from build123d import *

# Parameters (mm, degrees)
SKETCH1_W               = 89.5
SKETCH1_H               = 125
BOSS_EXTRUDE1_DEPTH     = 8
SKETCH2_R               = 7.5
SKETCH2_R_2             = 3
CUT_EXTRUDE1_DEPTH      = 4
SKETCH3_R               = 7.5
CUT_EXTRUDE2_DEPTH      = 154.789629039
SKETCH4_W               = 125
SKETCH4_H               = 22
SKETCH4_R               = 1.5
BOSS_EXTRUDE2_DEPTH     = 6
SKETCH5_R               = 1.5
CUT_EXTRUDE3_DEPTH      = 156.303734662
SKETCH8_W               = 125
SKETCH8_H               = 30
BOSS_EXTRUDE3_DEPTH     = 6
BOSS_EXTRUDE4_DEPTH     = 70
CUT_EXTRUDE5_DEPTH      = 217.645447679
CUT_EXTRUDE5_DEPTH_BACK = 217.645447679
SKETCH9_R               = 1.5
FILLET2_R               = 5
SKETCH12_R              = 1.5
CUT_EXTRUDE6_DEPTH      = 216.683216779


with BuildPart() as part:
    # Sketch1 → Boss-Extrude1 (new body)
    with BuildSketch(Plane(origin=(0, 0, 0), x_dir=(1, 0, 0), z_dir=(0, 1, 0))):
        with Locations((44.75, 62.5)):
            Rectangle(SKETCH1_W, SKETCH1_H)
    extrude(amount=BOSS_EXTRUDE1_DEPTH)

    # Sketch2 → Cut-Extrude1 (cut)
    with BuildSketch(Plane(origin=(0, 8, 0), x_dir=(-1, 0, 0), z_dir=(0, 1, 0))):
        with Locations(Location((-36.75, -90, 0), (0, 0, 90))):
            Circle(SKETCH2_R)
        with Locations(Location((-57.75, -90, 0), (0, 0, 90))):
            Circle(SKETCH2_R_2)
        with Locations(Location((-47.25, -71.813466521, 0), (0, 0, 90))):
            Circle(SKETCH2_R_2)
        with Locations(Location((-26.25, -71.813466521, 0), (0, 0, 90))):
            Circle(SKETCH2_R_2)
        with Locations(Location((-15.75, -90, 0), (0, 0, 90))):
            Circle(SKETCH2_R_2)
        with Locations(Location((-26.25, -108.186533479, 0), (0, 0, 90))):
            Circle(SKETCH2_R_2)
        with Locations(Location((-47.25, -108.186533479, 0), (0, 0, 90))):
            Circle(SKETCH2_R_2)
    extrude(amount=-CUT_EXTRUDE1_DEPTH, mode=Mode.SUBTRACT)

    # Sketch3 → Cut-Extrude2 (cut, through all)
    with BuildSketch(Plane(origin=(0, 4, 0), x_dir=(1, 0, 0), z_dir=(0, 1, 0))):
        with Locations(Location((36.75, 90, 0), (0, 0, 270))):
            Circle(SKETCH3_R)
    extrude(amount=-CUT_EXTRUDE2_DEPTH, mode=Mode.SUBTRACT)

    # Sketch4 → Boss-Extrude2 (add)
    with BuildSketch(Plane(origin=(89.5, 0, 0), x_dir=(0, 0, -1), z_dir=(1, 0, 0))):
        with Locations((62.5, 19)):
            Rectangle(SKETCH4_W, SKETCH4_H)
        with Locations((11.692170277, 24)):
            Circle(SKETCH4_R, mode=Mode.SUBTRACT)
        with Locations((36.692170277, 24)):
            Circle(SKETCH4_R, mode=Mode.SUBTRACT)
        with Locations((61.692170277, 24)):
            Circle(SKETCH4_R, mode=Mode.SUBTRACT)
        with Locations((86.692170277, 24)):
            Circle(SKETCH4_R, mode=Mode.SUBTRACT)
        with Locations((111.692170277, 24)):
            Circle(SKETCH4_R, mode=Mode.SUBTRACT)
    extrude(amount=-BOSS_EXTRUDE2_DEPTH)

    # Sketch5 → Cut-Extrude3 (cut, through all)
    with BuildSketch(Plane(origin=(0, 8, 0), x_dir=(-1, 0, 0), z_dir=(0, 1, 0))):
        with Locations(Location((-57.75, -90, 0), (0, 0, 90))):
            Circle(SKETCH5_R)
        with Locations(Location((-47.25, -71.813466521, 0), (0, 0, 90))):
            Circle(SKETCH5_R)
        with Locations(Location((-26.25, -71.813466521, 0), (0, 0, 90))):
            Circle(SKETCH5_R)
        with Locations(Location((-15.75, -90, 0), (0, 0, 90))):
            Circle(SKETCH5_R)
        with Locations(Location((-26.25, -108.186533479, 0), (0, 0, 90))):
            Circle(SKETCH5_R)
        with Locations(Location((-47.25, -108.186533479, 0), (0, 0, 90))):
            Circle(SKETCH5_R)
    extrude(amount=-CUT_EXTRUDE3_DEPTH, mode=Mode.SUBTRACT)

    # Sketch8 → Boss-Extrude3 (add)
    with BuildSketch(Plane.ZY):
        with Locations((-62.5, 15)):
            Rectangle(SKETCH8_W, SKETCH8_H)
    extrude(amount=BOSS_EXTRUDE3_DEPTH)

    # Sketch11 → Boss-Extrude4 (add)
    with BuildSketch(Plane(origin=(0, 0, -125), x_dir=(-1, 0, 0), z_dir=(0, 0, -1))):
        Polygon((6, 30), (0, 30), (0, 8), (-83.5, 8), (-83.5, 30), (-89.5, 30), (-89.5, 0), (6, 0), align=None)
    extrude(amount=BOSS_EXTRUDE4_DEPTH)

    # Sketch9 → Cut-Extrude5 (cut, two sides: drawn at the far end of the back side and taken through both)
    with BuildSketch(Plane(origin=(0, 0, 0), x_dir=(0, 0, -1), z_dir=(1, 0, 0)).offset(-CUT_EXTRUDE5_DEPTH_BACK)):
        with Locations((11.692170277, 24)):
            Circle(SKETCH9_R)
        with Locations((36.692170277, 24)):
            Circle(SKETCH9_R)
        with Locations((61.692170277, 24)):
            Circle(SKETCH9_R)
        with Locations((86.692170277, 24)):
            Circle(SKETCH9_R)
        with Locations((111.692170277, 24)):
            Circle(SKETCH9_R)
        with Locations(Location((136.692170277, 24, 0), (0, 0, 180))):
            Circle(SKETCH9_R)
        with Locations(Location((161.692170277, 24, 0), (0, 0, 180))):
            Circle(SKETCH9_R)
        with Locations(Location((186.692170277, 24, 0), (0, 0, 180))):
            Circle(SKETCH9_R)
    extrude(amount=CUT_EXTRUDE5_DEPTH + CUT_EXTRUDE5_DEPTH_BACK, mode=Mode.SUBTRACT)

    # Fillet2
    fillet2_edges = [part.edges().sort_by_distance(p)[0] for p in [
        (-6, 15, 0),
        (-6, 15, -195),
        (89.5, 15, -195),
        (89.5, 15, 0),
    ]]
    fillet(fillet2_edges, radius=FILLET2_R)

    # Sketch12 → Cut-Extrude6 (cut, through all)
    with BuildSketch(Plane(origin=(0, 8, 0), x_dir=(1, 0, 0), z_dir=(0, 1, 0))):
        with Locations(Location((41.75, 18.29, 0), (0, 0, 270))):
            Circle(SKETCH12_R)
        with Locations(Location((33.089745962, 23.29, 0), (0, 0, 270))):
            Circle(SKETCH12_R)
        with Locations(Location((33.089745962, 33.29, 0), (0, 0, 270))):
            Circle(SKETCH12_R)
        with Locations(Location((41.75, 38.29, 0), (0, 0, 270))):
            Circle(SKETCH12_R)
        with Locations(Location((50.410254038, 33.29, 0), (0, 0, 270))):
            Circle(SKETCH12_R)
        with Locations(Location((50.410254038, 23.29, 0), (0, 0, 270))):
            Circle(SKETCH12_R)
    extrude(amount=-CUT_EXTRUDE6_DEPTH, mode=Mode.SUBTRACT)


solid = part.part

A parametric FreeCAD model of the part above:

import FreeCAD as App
import Part
import Sketcher

V = App.Vector
Q = App.Units.Quantity


def edges_at(feature, points):
    """Names of the edges that pass closest to the given points."""
    edges = feature.Shape.Edges
    near = lambda p: min(range(len(edges)), key=lambda i: edges[i].distToShape(Part.Vertex(*p))[0])
    return sorted({f"Edge{near(p) + 1}" for p in points})


def add_polygon(sketch, points):
    """Adds a closed chain of lines whose ends are joined by coincident constraints."""
    first, n = sketch.GeometryCount, len(points)
    for a, b in zip(points, points[1:] + points[:1]):
        sketch.addGeometry(Part.LineSegment(App.Vector(*a, 0), App.Vector(*b, 0)), False)
    for i in range(n):
        sketch.addConstraint(Sketcher.Constraint("Coincident", first + i, 2, first + (i + 1) % n, 1))

doc = App.newDocument("Part")
body = doc.addObject("PartDesign::Body", "Body")

# Sketch on XZ plane
sketch1 = body.newObject("Sketcher::SketchObject", "Sketch")
sketch1.AttachmentSupport = (doc.getObject("XZ_Plane"), [""])
sketch1.MapMode = "FlatFace"
add_polygon(sketch1, [(0, -125), (0, 0), (89.5, 0), (89.5, -125)])  # lines 0-3
sketch1.addConstraint(Sketcher.Constraint("Vertical", 0))
sketch1.addConstraint(Sketcher.Constraint("Horizontal", 1))
sketch1.addConstraint(Sketcher.Constraint("Vertical", 2))
sketch1.addConstraint(Sketcher.Constraint("Horizontal", 3))
sketch1.addConstraint(Sketcher.Constraint("Coincident", 0, 2, -1, 1))
sketch1.addConstraint(Sketcher.Constraint("DistanceY", 0, 1, 0, 2, Q("125 mm")))
sketch1.addConstraint(Sketcher.Constraint("DistanceX", 1, 1, 1, 2, Q("89.5 mm")))
pad1 = body.newObject("PartDesign::Pad", "Pad")
pad1.Profile = sketch1
pad1.Length = 8
pad1.Reversed = True

# Sketch on XZ plane
sketch2 = body.newObject("Sketcher::SketchObject", "Sketch001")
sketch2.AttachmentSupport = (doc.getObject("XZ_Plane"), [""])
sketch2.MapMode = "FlatFace"
sketch2.AttachmentOffset = App.Placement(V(0, 0, -8), App.Rotation())
sketch2.addGeometry(Part.Circle(V(36.75, -90, 0), V(0, 0, 1), 7.5), False)
sketch2.addGeometry(Part.Circle(V(57.75, -90, 0), V(0, 0, 1), 3), False)
sketch2.addGeometry(Part.Circle(V(47.25, -71.813467, 0), V(0, 0, 1), 3), False)
sketch2.addGeometry(Part.Circle(V(26.25, -71.813467, 0), V(0, 0, 1), 3), False)
sketch2.addGeometry(Part.Circle(V(15.75, -90, 0), V(0, 0, 1), 3), False)
sketch2.addGeometry(Part.Circle(V(26.25, -108.186533, 0), V(0, 0, 1), 3), False)
sketch2.addGeometry(Part.Circle(V(47.25, -108.186533, 0), V(0, 0, 1), 3), False)
sketch2.addConstraint(Sketcher.Constraint("Equal", 1, 2))
sketch2.addConstraint(Sketcher.Constraint("Equal", 2, 3))
sketch2.addConstraint(Sketcher.Constraint("Equal", 3, 4))
sketch2.addConstraint(Sketcher.Constraint("Equal", 4, 5))
sketch2.addConstraint(Sketcher.Constraint("Equal", 5, 6))
sketch2.addConstraint(Sketcher.Constraint("Horizontal", 0, 3, 1, 3))
sketch2.addConstraint(Sketcher.Constraint("Horizontal", 2, 3, 3, 3))
sketch2.addConstraint(Sketcher.Constraint("Horizontal", 1, 3, 4, 3))
sketch2.addConstraint(Sketcher.Constraint("Horizontal", 5, 3, 6, 3))
sketch2.addConstraint(Sketcher.Constraint("Vertical", 3, 3, 5, 3))
sketch2.addConstraint(Sketcher.Constraint("Vertical", 2, 3, 6, 3))
sketch2.addConstraint(Sketcher.Constraint("Diameter", 0, Q("15 mm")))
sketch2.addConstraint(Sketcher.Constraint("Diameter", 1, Q("6 mm")))
sketch2.addConstraint(Sketcher.Constraint("DistanceY", 0, 3, -1, 1, Q("90 mm")))
sketch2.addConstraint(Sketcher.Constraint("DistanceX", 0, 3, 1, 3, Q("21 mm")))
sketch2.addConstraint(Sketcher.Constraint("DistanceX", 3, 3, 2, 3, Q("21 mm")))
sketch2.addConstraint(Sketcher.Constraint("DistanceX", 4, 3, 0, 3, Q("21 mm")))
sketch2.addConstraint(Sketcher.Constraint("DistanceX", 0, 3, 2, 3, Q("10.5 mm")))
sketch2.addConstraint(Sketcher.Constraint("DistanceX", -1, 1, 0, 3, Q("36.75 mm")))
sketch2.addConstraint(Sketcher.Constraint("DistanceY", 2, 3, -1, 1, Q("71.813467 mm")))
sketch2.addConstraint(Sketcher.Constraint("DistanceY", 5, 3, -1, 1, Q("108.186533 mm")))
pocket1 = body.newObject("PartDesign::Pocket", "Pocket")
pocket1.Profile = sketch2
pocket1.Length = 4
pocket1.Reversed = True

# Sketch on XZ plane
sketch3 = body.newObject("Sketcher::SketchObject", "Sketch002")
sketch3.AttachmentSupport = (doc.getObject("XZ_Plane"), [""])
sketch3.MapMode = "FlatFace"
sketch3.AttachmentOffset = App.Placement(V(0, 0, -4), App.Rotation())
sketch3.addGeometry(Part.Circle(V(36.75, -90, 0), V(0, 0, 1), 7.5), False)
sketch3.addConstraint(Sketcher.Constraint("Diameter", 0, Q("15 mm")))
sketch3.addConstraint(Sketcher.Constraint("DistanceY", 0, 3, -1, 1, Q("90 mm")))
sketch3.addConstraint(Sketcher.Constraint("DistanceX", -1, 1, 0, 3, Q("36.75 mm")))
pocket2 = body.newObject("PartDesign::Pocket", "Pocket001")
pocket2.Profile = sketch3
pocket2.Type = "ThroughAll"
pocket2.Reversed = True

# Sketch on YZ plane
sketch4 = body.newObject("Sketcher::SketchObject", "Sketch003")
sketch4.AttachmentSupport = (doc.getObject("YZ_Plane"), [""])
sketch4.MapMode = "FlatFace"
sketch4.AttachmentOffset = App.Placement(V(0, 0, 89.5), App.Rotation())
add_polygon(sketch4, [(30, 0), (8, 0), (8, -125), (30, -125)])  # lines 0-3
sketch4.addGeometry(Part.Circle(V(24, -11.69217, 0), V(0, 0, 1), 1.5), False)  # 4
sketch4.addGeometry(Part.Circle(V(24, -36.69217, 0), V(0, 0, 1), 1.5), False)  # 5
sketch4.addGeometry(Part.Circle(V(24, -61.69217, 0), V(0, 0, 1), 1.5), False)  # 6
sketch4.addGeometry(Part.Circle(V(24, -86.69217, 0), V(0, 0, 1), 1.5), False)  # 7
sketch4.addGeometry(Part.Circle(V(24, -111.69217, 0), V(0, 0, 1), 1.5), False)  # 8
sketch4.addConstraint(Sketcher.Constraint("Horizontal", 0))
sketch4.addConstraint(Sketcher.Constraint("Vertical", 1))
sketch4.addConstraint(Sketcher.Constraint("Horizontal", 2))
sketch4.addConstraint(Sketcher.Constraint("Vertical", 3))
sketch4.addConstraint(Sketcher.Constraint("Equal", 4, 5))
sketch4.addConstraint(Sketcher.Constraint("Equal", 5, 6))
sketch4.addConstraint(Sketcher.Constraint("Equal", 6, 7))
sketch4.addConstraint(Sketcher.Constraint("Equal", 7, 8))
sketch4.addConstraint(Sketcher.Constraint("PointOnObject", 0, 2, -1))
sketch4.addConstraint(Sketcher.Constraint("Vertical", 4, 3, 5, 3))
sketch4.addConstraint(Sketcher.Constraint("Vertical", 5, 3, 6, 3))
sketch4.addConstraint(Sketcher.Constraint("Vertical", 6, 3, 7, 3))
sketch4.addConstraint(Sketcher.Constraint("Vertical", 7, 3, 8, 3))
sketch4.addConstraint(Sketcher.Constraint("Diameter", 4, Q("3 mm")))
sketch4.addConstraint(Sketcher.Constraint("DistanceX", 0, 2, 0, 1, Q("22 mm")))
sketch4.addConstraint(Sketcher.Constraint("DistanceY", 1, 2, 1, 1, Q("125 mm")))
sketch4.addConstraint(Sketcher.Constraint("DistanceX", -1, 1, 4, 3, Q("24 mm")))
sketch4.addConstraint(Sketcher.Constraint("DistanceX", -1, 1, 0, 2, Q("8 mm")))
sketch4.addConstraint(Sketcher.Constraint("DistanceY", 5, 3, 4, 3, Q("25 mm")))
sketch4.addConstraint(Sketcher.Constraint("DistanceY", 6, 3, 5, 3, Q("25 mm")))
sketch4.addConstraint(Sketcher.Constraint("DistanceY", 7, 3, 6, 3, Q("25 mm")))
sketch4.addConstraint(Sketcher.Constraint("DistanceY", 8, 3, 7, 3, Q("25 mm")))
sketch4.addConstraint(Sketcher.Constraint("DistanceY", 4, 3, -1, 1, Q("11.69217 mm")))
pad2 = body.newObject("PartDesign::Pad", "Pad001")
pad2.Profile = sketch4
pad2.Length = 6
pad2.Reversed = True

# Sketch on XZ plane
sketch5 = body.newObject("Sketcher::SketchObject", "Sketch004")
sketch5.AttachmentSupport = (doc.getObject("XZ_Plane"), [""])
sketch5.MapMode = "FlatFace"
sketch5.AttachmentOffset = App.Placement(V(0, 0, -8), App.Rotation())
sketch5.addGeometry(Part.Circle(V(57.75, -90, 0), V(0, 0, 1), 1.5), False)
sketch5.addGeometry(Part.Circle(V(47.25, -71.813467, 0), V(0, 0, 1), 1.5), False)
sketch5.addGeometry(Part.Circle(V(26.25, -71.813467, 0), V(0, 0, 1), 1.5), False)
sketch5.addGeometry(Part.Circle(V(15.75, -90, 0), V(0, 0, 1), 1.5), False)
sketch5.addGeometry(Part.Circle(V(26.25, -108.186533, 0), V(0, 0, 1), 1.5), False)
sketch5.addGeometry(Part.Circle(V(47.25, -108.186533, 0), V(0, 0, 1), 1.5), False)
sketch5.addConstraint(Sketcher.Constraint("Equal", 0, 1))
sketch5.addConstraint(Sketcher.Constraint("Equal", 1, 2))
sketch5.addConstraint(Sketcher.Constraint("Equal", 2, 3))
sketch5.addConstraint(Sketcher.Constraint("Equal", 3, 4))
sketch5.addConstraint(Sketcher.Constraint("Equal", 4, 5))
sketch5.addConstraint(Sketcher.Constraint("Horizontal", 1, 3, 2, 3))
sketch5.addConstraint(Sketcher.Constraint("Horizontal", 0, 3, 3, 3))
sketch5.addConstraint(Sketcher.Constraint("Horizontal", 4, 3, 5, 3))
sketch5.addConstraint(Sketcher.Constraint("Vertical", 2, 3, 4, 3))
sketch5.addConstraint(Sketcher.Constraint("Vertical", 1, 3, 5, 3))
sketch5.addConstraint(Sketcher.Constraint("Diameter", 0, Q("3 mm")))
sketch5.addConstraint(Sketcher.Constraint("DistanceY", 0, 3, -1, 1, Q("90 mm")))
sketch5.addConstraint(Sketcher.Constraint("DistanceX", 2, 3, 1, 3, Q("21 mm")))
sketch5.addConstraint(Sketcher.Constraint("DistanceX", 3, 3, 0, 3, Q("42 mm")))
sketch5.addConstraint(Sketcher.Constraint("DistanceX", 1, 3, 0, 3, Q("10.5 mm")))
sketch5.addConstraint(Sketcher.Constraint("DistanceX", -1, 1, 0, 3, Q("57.75 mm")))
sketch5.addConstraint(Sketcher.Constraint("DistanceY", 1, 3, -1, 1, Q("71.813467 mm")))
sketch5.addConstraint(Sketcher.Constraint("DistanceY", 4, 3, -1, 1, Q("108.186533 mm")))
pocket3 = body.newObject("PartDesign::Pocket", "Pocket002")
pocket3.Profile = sketch5
pocket3.Type = "ThroughAll"
pocket3.Reversed = True

# Sketch on YZ plane
sketch6 = body.newObject("Sketcher::SketchObject", "Sketch005")
sketch6.AttachmentSupport = (doc.getObject("YZ_Plane"), [""])
sketch6.MapMode = "FlatFace"
add_polygon(sketch6, [(30, -125), (0, -125), (0, 0), (30, 0)])  # lines 0-3
sketch6.addConstraint(Sketcher.Constraint("Horizontal", 0))
sketch6.addConstraint(Sketcher.Constraint("Vertical", 1))
sketch6.addConstraint(Sketcher.Constraint("Horizontal", 2))
sketch6.addConstraint(Sketcher.Constraint("Vertical", 3))
sketch6.addConstraint(Sketcher.Constraint("Coincident", 1, 2, -1, 1))
sketch6.addConstraint(Sketcher.Constraint("DistanceX", 0, 2, 0, 1, Q("30 mm")))
sketch6.addConstraint(Sketcher.Constraint("DistanceY", 1, 1, 1, 2, Q("125 mm")))
pad3 = body.newObject("PartDesign::Pad", "Pad002")
pad3.Profile = sketch6
pad3.Length = 6
pad3.Reversed = True

# Sketch on XY plane
sketch7 = body.newObject("Sketcher::SketchObject", "Sketch006")
sketch7.AttachmentSupport = (doc.getObject("XY_Plane"), [""])
sketch7.MapMode = "FlatFace"
sketch7.AttachmentOffset = App.Placement(V(0, 0, -125), App.Rotation())
add_polygon(sketch7, [(-6, 30), (0, 30), (0, 8), (83.5, 8), (83.5, 30), (89.5, 30), (89.5, 0), (-6, 0)])  # lines 0-7
sketch7.addConstraint(Sketcher.Constraint("Horizontal", 0))
sketch7.addConstraint(Sketcher.Constraint("Vertical", 1))
sketch7.addConstraint(Sketcher.Constraint("Horizontal", 2))
sketch7.addConstraint(Sketcher.Constraint("Vertical", 3))
sketch7.addConstraint(Sketcher.Constraint("Horizontal", 4))
sketch7.addConstraint(Sketcher.Constraint("Vertical", 5))
sketch7.addConstraint(Sketcher.Constraint("Horizontal", 6))
sketch7.addConstraint(Sketcher.Constraint("Vertical", 7))
sketch7.addConstraint(Sketcher.Constraint("PointOnObject", 0, 2, -2))
sketch7.addConstraint(Sketcher.Constraint("PointOnObject", 5, 2, -1))
sketch7.addConstraint(Sketcher.Constraint("Horizontal", 0, 2, 3, 2))
sketch7.addConstraint(Sketcher.Constraint("Equal", 0, 4))
sketch7.addConstraint(Sketcher.Constraint("DistanceX", 0, 1, 0, 2, Q("6 mm")))
sketch7.addConstraint(Sketcher.Constraint("DistanceY", 1, 2, 1, 1, Q("22 mm")))
sketch7.addConstraint(Sketcher.Constraint("DistanceY", 5, 2, 5, 1, Q("30 mm")))
sketch7.addConstraint(Sketcher.Constraint("DistanceX", 2, 1, 2, 2, Q("83.5 mm")))
pad4 = body.newObject("PartDesign::Pad", "Pad003")
pad4.Profile = sketch7
pad4.Length = 70
pad4.Reversed = True

# Sketch on YZ plane
sketch8 = body.newObject("Sketcher::SketchObject", "Sketch007")
sketch8.AttachmentSupport = (doc.getObject("YZ_Plane"), [""])
sketch8.MapMode = "FlatFace"
sketch8.addGeometry(Part.Circle(V(24, -11.69217, 0), V(0, 0, 1), 1.5), False)
sketch8.addGeometry(Part.Circle(V(24, -36.69217, 0), V(0, 0, 1), 1.5), False)
sketch8.addGeometry(Part.Circle(V(24, -61.69217, 0), V(0, 0, 1), 1.5), False)
sketch8.addGeometry(Part.Circle(V(24, -86.69217, 0), V(0, 0, 1), 1.5), False)
sketch8.addGeometry(Part.Circle(V(24, -111.69217, 0), V(0, 0, 1), 1.5), False)
sketch8.addGeometry(Part.Circle(V(24, -136.69217, 0), V(0, 0, 1), 1.5), False)
sketch8.addGeometry(Part.Circle(V(24, -161.69217, 0), V(0, 0, 1), 1.5), False)
sketch8.addGeometry(Part.Circle(V(24, -186.69217, 0), V(0, 0, 1), 1.5), False)
sketch8.addConstraint(Sketcher.Constraint("Equal", 0, 1))
sketch8.addConstraint(Sketcher.Constraint("Equal", 1, 2))
sketch8.addConstraint(Sketcher.Constraint("Equal", 2, 3))
sketch8.addConstraint(Sketcher.Constraint("Equal", 3, 4))
sketch8.addConstraint(Sketcher.Constraint("Equal", 4, 5))
sketch8.addConstraint(Sketcher.Constraint("Equal", 5, 6))
sketch8.addConstraint(Sketcher.Constraint("Equal", 6, 7))
sketch8.addConstraint(Sketcher.Constraint("Vertical", 0, 3, 1, 3))
sketch8.addConstraint(Sketcher.Constraint("Vertical", 1, 3, 2, 3))
sketch8.addConstraint(Sketcher.Constraint("Vertical", 2, 3, 3, 3))
sketch8.addConstraint(Sketcher.Constraint("Vertical", 3, 3, 4, 3))
sketch8.addConstraint(Sketcher.Constraint("Vertical", 4, 3, 5, 3))
sketch8.addConstraint(Sketcher.Constraint("Vertical", 5, 3, 6, 3))
sketch8.addConstraint(Sketcher.Constraint("Vertical", 6, 3, 7, 3))
sketch8.addConstraint(Sketcher.Constraint("Diameter", 0, Q("3 mm")))
sketch8.addConstraint(Sketcher.Constraint("DistanceX", -1, 1, 0, 3, Q("24 mm")))
sketch8.addConstraint(Sketcher.Constraint("DistanceY", 1, 3, 0, 3, Q("25 mm")))
sketch8.addConstraint(Sketcher.Constraint("DistanceY", 2, 3, 1, 3, Q("25 mm")))
sketch8.addConstraint(Sketcher.Constraint("DistanceY", 3, 3, 2, 3, Q("25 mm")))
sketch8.addConstraint(Sketcher.Constraint("DistanceY", 4, 3, 3, 3, Q("25 mm")))
sketch8.addConstraint(Sketcher.Constraint("DistanceY", 5, 3, 4, 3, Q("25 mm")))
sketch8.addConstraint(Sketcher.Constraint("DistanceY", 6, 3, 5, 3, Q("25 mm")))
sketch8.addConstraint(Sketcher.Constraint("DistanceY", 7, 3, 6, 3, Q("25 mm")))
sketch8.addConstraint(Sketcher.Constraint("DistanceY", 0, 3, -1, 1, Q("11.69217 mm")))
pocket4 = body.newObject("PartDesign::Pocket", "Pocket003")
pocket4.Profile = sketch8
pocket4.Type = "ThroughAll"
pocket4.Midplane = True
doc.recompute()

fillet = body.newObject("PartDesign::Fillet", "Fillet")
fillet.Base = (pocket4, edges_at(pocket4, [
    (-6, 15, 0),
    (-6, 15, -195),
    (89.5, 15, -195),
    (89.5, 15, 0),
]))
fillet.Radius = 5

# Sketch on XZ plane
sketch9 = body.newObject("Sketcher::SketchObject", "Sketch008")
sketch9.AttachmentSupport = (doc.getObject("XZ_Plane"), [""])
sketch9.MapMode = "FlatFace"
sketch9.AttachmentOffset = App.Placement(V(0, 0, -8), App.Rotation())
sketch9.addGeometry(Part.Circle(V(41.75, -18.29, 0), V(0, 0, 1), 1.5), False)
sketch9.addGeometry(Part.Circle(V(33.089746, -23.29, 0), V(0, 0, 1), 1.5), False)
sketch9.addGeometry(Part.Circle(V(33.089746, -33.29, 0), V(0, 0, 1), 1.5), False)
sketch9.addGeometry(Part.Circle(V(41.75, -38.29, 0), V(0, 0, 1), 1.5), False)
sketch9.addGeometry(Part.Circle(V(50.410254, -33.29, 0), V(0, 0, 1), 1.5), False)
sketch9.addGeometry(Part.Circle(V(50.410254, -23.29, 0), V(0, 0, 1), 1.5), False)
sketch9.addConstraint(Sketcher.Constraint("Equal", 0, 1))
sketch9.addConstraint(Sketcher.Constraint("Equal", 1, 2))
sketch9.addConstraint(Sketcher.Constraint("Equal", 2, 3))
sketch9.addConstraint(Sketcher.Constraint("Equal", 3, 4))
sketch9.addConstraint(Sketcher.Constraint("Equal", 4, 5))
sketch9.addConstraint(Sketcher.Constraint("Horizontal", 2, 3, 4, 3))
sketch9.addConstraint(Sketcher.Constraint("Horizontal", 1, 3, 5, 3))
sketch9.addConstraint(Sketcher.Constraint("Vertical", 1, 3, 2, 3))
sketch9.addConstraint(Sketcher.Constraint("Vertical", 0, 3, 3, 3))
sketch9.addConstraint(Sketcher.Constraint("Vertical", 4, 3, 5, 3))
sketch9.addConstraint(Sketcher.Constraint("Diameter", 0, Q("3 mm")))
sketch9.addConstraint(Sketcher.Constraint("DistanceY", 1, 3, 0, 3, Q("5 mm")))
sketch9.addConstraint(Sketcher.Constraint("DistanceY", 2, 3, 1, 3, Q("10 mm")))
sketch9.addConstraint(Sketcher.Constraint("DistanceY", 3, 3, 2, 3, Q("5 mm")))
sketch9.addConstraint(Sketcher.Constraint("DistanceX", -1, 1, 0, 3, Q("41.75 mm")))
sketch9.addConstraint(Sketcher.Constraint("DistanceY", 0, 3, -1, 1, Q("18.29 mm")))
sketch9.addConstraint(Sketcher.Constraint("DistanceX", 2, 3, 4, 3, Q("17.320508 mm")))
sketch9.addConstraint(Sketcher.Constraint("DistanceX", -1, 1, 1, 3, Q("33.089746 mm")))
pocket5 = body.newObject("PartDesign::Pocket", "Pocket004")
pocket5.Profile = sketch9
pocket5.Type = "ThroughAll"
pocket5.Reversed = True

doc.recompute()
